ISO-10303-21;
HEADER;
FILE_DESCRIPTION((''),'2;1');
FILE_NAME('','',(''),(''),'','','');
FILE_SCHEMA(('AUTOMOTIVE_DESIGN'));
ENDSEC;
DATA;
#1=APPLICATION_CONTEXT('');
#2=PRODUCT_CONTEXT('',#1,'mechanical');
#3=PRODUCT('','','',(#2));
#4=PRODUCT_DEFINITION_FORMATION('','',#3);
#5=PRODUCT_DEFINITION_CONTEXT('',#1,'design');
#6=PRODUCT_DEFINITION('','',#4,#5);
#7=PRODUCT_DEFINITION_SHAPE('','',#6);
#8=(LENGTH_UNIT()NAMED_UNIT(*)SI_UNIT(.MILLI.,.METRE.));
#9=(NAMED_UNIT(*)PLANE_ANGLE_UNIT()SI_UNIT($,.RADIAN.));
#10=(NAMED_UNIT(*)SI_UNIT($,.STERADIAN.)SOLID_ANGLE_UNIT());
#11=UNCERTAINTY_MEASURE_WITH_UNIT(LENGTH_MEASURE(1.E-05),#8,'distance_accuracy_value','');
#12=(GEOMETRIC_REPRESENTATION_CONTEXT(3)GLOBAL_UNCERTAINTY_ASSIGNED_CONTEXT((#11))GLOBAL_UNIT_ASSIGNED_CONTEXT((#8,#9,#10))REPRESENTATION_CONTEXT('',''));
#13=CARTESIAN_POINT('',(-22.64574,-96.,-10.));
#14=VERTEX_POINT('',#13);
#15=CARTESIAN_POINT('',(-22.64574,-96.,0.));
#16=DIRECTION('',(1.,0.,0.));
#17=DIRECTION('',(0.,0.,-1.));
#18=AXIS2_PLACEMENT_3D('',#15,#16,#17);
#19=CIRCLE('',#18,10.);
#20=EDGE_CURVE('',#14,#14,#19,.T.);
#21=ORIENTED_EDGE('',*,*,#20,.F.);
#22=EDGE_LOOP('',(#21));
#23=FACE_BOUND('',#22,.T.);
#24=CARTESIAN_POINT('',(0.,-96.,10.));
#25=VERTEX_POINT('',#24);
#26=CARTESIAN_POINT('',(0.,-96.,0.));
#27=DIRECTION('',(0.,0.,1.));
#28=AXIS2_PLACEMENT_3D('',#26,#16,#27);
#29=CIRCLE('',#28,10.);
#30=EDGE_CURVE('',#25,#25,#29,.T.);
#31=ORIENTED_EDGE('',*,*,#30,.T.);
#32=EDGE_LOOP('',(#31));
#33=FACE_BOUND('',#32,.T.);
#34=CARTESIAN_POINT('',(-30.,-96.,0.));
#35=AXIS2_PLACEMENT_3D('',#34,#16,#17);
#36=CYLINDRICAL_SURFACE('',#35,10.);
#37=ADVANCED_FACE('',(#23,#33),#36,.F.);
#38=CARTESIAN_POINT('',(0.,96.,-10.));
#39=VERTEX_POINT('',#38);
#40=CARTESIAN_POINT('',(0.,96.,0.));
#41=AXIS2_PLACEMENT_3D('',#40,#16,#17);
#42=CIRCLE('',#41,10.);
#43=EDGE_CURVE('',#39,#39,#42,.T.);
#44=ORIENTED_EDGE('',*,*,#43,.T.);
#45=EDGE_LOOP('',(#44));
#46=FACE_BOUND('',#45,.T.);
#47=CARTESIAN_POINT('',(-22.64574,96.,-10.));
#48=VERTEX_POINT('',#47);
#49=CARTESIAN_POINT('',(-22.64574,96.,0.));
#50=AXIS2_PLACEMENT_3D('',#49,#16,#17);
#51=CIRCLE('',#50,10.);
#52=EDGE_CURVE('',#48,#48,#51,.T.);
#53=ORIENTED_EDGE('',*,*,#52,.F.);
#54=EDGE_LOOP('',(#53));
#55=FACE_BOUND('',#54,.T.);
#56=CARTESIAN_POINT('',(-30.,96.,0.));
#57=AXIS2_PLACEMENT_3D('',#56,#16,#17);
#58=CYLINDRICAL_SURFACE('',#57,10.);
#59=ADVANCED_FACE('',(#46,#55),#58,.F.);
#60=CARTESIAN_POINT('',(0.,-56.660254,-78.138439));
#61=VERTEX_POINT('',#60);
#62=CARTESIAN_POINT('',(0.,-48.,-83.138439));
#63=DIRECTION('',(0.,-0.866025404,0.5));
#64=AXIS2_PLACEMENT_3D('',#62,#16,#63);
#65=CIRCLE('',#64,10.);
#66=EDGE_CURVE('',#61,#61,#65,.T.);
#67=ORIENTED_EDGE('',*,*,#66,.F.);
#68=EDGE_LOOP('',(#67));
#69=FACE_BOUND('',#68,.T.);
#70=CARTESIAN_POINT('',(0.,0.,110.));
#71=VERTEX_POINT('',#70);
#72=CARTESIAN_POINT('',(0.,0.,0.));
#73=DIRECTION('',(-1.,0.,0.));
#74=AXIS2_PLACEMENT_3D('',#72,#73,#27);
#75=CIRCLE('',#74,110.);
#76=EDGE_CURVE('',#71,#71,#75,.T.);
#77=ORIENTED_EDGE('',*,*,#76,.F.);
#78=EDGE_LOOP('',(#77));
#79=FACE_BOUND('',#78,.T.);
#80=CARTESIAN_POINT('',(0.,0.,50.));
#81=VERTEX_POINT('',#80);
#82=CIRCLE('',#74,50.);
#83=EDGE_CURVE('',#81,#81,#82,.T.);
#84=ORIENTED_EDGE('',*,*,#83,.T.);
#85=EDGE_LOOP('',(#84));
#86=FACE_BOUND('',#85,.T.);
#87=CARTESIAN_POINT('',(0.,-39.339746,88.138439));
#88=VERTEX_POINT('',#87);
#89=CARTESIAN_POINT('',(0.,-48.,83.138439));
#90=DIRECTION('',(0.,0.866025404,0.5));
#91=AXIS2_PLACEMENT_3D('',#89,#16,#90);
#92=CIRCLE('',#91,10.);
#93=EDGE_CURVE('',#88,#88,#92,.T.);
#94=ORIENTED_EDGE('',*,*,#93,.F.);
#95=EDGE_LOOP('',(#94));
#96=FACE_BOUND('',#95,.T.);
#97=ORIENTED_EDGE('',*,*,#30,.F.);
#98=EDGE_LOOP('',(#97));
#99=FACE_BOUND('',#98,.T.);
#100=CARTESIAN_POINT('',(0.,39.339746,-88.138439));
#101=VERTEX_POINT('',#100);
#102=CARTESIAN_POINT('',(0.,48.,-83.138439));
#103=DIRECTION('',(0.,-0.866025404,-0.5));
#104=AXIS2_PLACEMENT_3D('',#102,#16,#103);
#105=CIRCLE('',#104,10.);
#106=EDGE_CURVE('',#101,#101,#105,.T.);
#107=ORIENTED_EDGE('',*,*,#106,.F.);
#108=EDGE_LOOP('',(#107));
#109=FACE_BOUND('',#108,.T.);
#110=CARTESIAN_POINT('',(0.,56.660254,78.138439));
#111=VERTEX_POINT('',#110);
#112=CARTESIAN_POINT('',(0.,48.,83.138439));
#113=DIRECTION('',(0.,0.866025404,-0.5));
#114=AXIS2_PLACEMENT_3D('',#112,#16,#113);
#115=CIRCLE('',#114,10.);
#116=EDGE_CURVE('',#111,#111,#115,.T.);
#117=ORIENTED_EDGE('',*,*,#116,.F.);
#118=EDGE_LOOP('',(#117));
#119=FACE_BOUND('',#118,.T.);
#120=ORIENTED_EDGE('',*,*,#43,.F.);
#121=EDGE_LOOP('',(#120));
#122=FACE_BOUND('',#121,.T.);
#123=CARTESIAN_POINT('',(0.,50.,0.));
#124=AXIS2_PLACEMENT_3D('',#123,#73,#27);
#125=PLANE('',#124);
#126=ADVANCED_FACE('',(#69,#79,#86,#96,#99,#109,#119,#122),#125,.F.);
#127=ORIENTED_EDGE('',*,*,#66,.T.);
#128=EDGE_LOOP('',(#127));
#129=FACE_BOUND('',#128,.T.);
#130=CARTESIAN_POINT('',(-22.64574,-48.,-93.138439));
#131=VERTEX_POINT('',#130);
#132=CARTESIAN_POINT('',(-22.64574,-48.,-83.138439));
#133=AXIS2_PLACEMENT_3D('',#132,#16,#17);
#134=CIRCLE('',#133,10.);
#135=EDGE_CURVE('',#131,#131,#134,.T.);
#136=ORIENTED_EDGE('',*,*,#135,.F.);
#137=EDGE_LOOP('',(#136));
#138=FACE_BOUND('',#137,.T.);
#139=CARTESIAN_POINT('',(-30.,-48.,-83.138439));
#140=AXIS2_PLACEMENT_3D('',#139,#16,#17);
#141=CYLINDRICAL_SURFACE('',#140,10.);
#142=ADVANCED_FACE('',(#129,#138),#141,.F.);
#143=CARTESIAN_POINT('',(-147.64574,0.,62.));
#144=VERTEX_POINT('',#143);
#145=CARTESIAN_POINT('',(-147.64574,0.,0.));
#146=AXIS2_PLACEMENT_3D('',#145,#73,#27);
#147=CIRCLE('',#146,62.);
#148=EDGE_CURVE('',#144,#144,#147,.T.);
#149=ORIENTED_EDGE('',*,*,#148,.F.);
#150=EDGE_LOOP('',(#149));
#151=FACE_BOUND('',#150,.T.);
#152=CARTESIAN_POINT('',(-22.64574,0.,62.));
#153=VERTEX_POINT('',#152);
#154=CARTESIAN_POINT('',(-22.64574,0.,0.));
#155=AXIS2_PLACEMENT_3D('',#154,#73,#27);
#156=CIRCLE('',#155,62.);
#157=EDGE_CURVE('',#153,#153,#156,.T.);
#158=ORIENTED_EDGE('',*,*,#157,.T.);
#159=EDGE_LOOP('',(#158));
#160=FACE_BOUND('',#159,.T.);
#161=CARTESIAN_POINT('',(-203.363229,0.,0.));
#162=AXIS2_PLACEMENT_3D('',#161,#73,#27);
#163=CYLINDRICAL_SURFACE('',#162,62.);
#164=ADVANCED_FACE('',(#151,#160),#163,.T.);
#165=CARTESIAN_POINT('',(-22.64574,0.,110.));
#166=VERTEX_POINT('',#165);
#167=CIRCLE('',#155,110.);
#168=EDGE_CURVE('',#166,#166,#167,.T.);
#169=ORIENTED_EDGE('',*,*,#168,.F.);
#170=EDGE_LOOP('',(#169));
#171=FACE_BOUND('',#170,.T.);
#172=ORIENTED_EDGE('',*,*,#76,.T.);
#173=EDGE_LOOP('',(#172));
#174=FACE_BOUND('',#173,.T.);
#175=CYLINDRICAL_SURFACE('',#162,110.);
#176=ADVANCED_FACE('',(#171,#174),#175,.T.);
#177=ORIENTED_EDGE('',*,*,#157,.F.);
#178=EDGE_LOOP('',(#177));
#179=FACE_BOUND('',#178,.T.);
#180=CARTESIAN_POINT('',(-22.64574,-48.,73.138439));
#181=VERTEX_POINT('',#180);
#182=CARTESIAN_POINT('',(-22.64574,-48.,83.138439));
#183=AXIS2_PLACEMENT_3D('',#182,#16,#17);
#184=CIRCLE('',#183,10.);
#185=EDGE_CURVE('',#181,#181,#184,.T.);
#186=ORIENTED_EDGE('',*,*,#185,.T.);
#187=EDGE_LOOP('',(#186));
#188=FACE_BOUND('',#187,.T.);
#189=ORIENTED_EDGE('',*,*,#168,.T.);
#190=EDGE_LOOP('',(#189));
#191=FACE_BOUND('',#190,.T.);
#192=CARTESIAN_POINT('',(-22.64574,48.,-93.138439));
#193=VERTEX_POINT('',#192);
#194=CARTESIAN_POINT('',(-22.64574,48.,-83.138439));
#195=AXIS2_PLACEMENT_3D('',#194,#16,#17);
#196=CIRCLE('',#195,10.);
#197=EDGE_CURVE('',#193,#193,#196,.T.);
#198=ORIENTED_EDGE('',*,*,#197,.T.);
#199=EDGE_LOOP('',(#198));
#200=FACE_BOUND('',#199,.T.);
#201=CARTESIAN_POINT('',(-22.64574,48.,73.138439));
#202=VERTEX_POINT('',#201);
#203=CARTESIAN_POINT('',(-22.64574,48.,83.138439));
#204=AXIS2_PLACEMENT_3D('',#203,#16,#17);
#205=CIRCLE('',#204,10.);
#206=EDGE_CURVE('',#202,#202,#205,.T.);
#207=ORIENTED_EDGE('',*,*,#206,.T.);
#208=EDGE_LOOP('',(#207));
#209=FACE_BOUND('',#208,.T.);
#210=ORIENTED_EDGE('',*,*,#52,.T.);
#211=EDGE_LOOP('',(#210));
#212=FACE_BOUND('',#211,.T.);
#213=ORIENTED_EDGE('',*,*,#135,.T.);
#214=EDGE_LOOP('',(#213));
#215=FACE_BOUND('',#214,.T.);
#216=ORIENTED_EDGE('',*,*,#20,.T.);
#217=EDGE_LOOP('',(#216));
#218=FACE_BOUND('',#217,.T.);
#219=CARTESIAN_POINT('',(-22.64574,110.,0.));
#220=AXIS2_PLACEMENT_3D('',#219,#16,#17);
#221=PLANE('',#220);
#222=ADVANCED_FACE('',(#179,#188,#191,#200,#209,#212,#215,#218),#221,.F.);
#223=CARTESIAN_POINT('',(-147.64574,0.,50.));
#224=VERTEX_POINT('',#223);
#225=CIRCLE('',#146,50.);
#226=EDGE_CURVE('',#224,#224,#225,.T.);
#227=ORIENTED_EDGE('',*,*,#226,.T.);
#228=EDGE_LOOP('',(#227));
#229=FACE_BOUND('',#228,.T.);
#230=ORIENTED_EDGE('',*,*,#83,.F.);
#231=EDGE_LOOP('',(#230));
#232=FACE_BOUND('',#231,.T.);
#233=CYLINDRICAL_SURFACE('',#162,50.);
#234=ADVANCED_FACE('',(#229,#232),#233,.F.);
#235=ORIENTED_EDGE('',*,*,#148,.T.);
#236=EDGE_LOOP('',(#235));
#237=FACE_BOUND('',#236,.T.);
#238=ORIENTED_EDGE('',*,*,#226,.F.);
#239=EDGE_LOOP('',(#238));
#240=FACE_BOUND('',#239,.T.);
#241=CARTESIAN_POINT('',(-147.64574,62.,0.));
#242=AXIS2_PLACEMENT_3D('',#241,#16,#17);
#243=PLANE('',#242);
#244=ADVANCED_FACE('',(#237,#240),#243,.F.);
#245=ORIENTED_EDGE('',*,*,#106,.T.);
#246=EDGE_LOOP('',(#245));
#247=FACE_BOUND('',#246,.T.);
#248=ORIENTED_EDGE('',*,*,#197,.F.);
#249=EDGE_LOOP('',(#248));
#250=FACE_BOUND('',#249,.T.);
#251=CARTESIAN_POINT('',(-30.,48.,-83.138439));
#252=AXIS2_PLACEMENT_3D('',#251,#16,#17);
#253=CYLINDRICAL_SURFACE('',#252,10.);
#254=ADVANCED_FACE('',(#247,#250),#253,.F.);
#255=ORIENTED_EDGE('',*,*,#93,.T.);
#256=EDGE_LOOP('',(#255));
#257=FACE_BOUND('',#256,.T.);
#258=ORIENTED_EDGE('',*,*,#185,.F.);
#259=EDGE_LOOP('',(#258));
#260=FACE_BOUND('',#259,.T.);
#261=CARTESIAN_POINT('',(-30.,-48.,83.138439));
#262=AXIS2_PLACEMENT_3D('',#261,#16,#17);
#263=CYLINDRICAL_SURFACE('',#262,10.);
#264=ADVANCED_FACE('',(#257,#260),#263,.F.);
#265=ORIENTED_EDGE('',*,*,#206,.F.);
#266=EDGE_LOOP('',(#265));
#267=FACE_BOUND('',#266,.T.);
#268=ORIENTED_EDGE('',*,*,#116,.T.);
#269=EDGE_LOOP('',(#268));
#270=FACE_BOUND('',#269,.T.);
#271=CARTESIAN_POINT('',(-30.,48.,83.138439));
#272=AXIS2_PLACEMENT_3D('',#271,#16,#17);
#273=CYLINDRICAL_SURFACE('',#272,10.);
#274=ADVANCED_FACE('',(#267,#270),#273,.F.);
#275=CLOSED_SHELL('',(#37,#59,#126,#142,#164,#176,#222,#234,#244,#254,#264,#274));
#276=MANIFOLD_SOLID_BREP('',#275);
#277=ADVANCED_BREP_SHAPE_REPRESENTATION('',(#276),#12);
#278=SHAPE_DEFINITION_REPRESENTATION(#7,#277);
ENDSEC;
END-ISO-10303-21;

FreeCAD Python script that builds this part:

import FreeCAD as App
import Part
import Sketcher


def add_polygon(sketch, points):
    """Adds a closed chain of lines whose ends are joined by coincident constraints."""
    first, n = sketch.GeometryCount, len(points)
    for a, b in zip(points, points[1:] + points[:1]):
        sketch.addGeometry(Part.LineSegment(App.Vector(*a, 0), App.Vector(*b, 0)), False)
    for i in range(n):
        sketch.addConstraint(Sketcher.Constraint("Coincident", first + i, 2, first + (i + 1) % n, 1))

doc = App.newDocument("Part")
body = doc.addObject("PartDesign::Body", "Body")

sketch1 = body.newObject("Sketcher::SketchObject", "Sketch")
sketch1.AttachmentSupport = (doc.getObject("XY_Plane"), [""])
sketch1.MapMode = "FlatFace"
add_polygon(sketch1, [(-148, 50), (0, 50), (0, 110), (-23, 110), (-23, 62), (-148, 62)])
sketch1.addConstraint(Sketcher.Constraint("Horizontal", 0))
sketch1.addConstraint(Sketcher.Constraint("Vertical", 1))
sketch1.addConstraint(Sketcher.Constraint("Horizontal", 2))
sketch1.addConstraint(Sketcher.Constraint("Vertical", 3))
sketch1.addConstraint(Sketcher.Constraint("Horizontal", 4))
sketch1.addConstraint(Sketcher.Constraint("Vertical", 5))
sketch1.addConstraint(Sketcher.Constraint("PointOnObject", 0, 2, -2))
sketch1.addConstraint(Sketcher.Constraint("DistanceX", 4, 2, 4, 1, 125.0))
sketch1.addConstraint(Sketcher.Constraint("DistanceY", 1, 1, 1, 2, 60.0))
sketch1.addConstraint(Sketcher.Constraint("DistanceY", 3, 2, 3, 1, 48.0))
sketch1.addConstraint(Sketcher.Constraint("DistanceY", -1, 1, 0, 2, 50.0))
sketch1.addConstraint(Sketcher.Constraint("DistanceX", 0, 1, 0, 2, 147.64574))
revolution = body.newObject("PartDesign::Revolution", "Revolution")
revolution.Profile = sketch1
revolution.ReferenceAxis = (sketch1, ["H_Axis"])
revolution.Angle = 360

sketch2 = body.newObject("Sketcher::SketchObject", "Sketch001")
sketch2.AttachmentSupport = (doc.getObject("YZ_Plane"), [""])
sketch2.MapMode = "FlatFace"
sketch2.addGeometry(Part.Circle(App.Vector(96, 0, 0), App.Vector(0, 0, 1), 10), False)
sketch2.addConstraint(Sketcher.Constraint("PointOnObject", 0, 3, -1))
sketch2.addConstraint(Sketcher.Constraint("Diameter", 0, 20.0))
sketch2.addConstraint(Sketcher.Constraint("DistanceX", -1, 1, 0, 3, 96.0))
pocket1 = body.newObject("PartDesign::Pocket", "Pocket")
pocket1.Profile = sketch2
pocket1.Length = 30
doc.recompute()

polarpattern = body.newObject("PartDesign::PolarPattern", "PolarPattern")
polarpattern.Originals = [pocket1]
polarpattern.Axis = (doc.getObject("X_Axis"), [""])
polarpattern.Angle = 360
polarpattern.Occurrences = 6
body.Tip = polarpattern

doc.recompute()
